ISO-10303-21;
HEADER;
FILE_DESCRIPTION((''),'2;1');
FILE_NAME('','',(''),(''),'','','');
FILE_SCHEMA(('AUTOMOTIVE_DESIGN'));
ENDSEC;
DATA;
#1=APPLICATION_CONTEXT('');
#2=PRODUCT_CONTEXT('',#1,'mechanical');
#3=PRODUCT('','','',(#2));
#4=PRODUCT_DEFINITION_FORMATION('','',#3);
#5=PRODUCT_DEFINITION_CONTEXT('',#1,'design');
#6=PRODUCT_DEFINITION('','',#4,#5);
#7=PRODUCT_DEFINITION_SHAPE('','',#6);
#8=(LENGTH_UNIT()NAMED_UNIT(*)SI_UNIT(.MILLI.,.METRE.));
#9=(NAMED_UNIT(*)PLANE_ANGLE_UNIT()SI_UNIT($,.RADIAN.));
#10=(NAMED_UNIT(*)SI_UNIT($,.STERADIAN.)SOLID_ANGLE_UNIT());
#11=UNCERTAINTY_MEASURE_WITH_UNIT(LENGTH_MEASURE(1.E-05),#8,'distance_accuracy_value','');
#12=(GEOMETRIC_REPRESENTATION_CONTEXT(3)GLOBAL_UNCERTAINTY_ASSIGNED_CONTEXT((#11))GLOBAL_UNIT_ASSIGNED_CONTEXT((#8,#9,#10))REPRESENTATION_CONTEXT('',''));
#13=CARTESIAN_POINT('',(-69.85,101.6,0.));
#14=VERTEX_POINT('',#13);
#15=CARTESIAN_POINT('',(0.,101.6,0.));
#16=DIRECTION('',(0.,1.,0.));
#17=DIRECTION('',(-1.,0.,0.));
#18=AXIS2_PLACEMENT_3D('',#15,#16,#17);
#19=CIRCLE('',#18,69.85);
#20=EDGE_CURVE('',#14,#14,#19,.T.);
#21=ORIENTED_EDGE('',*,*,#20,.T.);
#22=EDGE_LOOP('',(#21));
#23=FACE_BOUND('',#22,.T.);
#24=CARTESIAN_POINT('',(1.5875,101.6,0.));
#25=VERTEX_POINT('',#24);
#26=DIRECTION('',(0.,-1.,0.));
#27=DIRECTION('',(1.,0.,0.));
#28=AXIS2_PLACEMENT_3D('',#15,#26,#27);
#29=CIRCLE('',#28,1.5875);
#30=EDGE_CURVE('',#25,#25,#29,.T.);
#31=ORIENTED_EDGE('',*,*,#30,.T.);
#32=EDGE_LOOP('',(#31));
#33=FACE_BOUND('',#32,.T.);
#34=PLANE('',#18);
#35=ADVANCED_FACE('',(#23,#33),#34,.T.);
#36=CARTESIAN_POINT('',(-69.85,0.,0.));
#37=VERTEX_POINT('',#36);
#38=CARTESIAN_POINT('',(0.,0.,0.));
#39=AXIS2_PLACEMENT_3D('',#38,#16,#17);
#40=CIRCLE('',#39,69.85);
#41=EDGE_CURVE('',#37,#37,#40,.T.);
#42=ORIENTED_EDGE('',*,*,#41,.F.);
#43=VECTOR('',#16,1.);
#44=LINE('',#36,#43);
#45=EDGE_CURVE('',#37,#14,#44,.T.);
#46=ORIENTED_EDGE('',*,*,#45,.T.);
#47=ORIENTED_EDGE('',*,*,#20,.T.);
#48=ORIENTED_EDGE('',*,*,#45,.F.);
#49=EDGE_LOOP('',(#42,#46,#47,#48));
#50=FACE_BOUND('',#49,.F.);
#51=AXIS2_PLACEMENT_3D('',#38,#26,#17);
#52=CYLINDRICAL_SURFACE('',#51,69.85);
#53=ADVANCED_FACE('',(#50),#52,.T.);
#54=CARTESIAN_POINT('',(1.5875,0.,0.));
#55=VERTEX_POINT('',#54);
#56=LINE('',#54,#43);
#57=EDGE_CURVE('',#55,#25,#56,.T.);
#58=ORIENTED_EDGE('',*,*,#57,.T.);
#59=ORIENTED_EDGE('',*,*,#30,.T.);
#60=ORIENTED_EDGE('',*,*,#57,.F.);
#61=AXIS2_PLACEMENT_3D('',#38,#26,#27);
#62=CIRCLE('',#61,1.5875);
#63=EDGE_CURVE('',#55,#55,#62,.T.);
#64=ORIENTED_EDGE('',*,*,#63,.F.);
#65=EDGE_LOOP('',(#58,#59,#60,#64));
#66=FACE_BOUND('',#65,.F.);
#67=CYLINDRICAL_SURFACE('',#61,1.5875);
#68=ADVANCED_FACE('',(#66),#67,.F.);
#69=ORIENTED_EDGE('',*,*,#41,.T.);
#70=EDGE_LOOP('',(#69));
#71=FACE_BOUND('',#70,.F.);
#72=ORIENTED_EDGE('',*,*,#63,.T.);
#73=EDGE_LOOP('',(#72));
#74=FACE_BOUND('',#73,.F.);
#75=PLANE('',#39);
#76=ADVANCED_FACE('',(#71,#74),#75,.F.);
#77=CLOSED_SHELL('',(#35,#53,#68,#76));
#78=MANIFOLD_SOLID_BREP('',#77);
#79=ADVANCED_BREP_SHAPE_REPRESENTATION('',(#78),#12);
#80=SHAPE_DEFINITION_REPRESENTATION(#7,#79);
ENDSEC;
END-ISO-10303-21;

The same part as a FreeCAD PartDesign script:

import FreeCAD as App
import Part
import Sketcher
from FreeCAD import Vector
Q = App.Units.Quantity

doc = App.newDocument("Part")
body = doc.addObject("PartDesign::Body", "Body")

# Sketch on XZ plane
sketch1 = body.newObject("Sketcher::SketchObject", "Sketch")
sketch1.AttachmentSupport = (doc.getObject("XZ_Plane"), [""])
sketch1.MapMode = "FlatFace"
sketch1.addGeometry(Part.Circle(Vector(0, 0, 0), Vector(0, 0, 1), 70), False)
sketch1.addConstraint([
    Sketcher.Constraint("Coincident", 0, 3, -1, 1),
    Sketcher.Constraint("Diameter", 0, Q("5.5 in")),
])
pad1 = body.newObject("PartDesign::Pad", "Pad")
pad1.Profile = sketch1
pad1.Length = Q("4 in")
pad1.Reversed = True

# Sketch on XZ plane
sketch2 = body.newObject("Sketcher::SketchObject", "Sketch001")
sketch2.AttachmentSupport = (doc.getObject("XZ_Plane"), [""])
sketch2.MapMode = "FlatFace"
sketch2.addGeometry(Part.Circle(Vector(0, 0, 0), Vector(0, 0, 1), 1.6), False)
sketch2.addConstraint([
    Sketcher.Constraint("Coincident", 0, 3, -1, 1),
    Sketcher.Constraint("Diameter", 0, Q("0.125 in")),
])
pocket1 = body.newObject("PartDesign::Pocket", "Pocket")
pocket1.Profile = sketch2
pocket1.Type = "ThroughAll"

doc.recompute()
